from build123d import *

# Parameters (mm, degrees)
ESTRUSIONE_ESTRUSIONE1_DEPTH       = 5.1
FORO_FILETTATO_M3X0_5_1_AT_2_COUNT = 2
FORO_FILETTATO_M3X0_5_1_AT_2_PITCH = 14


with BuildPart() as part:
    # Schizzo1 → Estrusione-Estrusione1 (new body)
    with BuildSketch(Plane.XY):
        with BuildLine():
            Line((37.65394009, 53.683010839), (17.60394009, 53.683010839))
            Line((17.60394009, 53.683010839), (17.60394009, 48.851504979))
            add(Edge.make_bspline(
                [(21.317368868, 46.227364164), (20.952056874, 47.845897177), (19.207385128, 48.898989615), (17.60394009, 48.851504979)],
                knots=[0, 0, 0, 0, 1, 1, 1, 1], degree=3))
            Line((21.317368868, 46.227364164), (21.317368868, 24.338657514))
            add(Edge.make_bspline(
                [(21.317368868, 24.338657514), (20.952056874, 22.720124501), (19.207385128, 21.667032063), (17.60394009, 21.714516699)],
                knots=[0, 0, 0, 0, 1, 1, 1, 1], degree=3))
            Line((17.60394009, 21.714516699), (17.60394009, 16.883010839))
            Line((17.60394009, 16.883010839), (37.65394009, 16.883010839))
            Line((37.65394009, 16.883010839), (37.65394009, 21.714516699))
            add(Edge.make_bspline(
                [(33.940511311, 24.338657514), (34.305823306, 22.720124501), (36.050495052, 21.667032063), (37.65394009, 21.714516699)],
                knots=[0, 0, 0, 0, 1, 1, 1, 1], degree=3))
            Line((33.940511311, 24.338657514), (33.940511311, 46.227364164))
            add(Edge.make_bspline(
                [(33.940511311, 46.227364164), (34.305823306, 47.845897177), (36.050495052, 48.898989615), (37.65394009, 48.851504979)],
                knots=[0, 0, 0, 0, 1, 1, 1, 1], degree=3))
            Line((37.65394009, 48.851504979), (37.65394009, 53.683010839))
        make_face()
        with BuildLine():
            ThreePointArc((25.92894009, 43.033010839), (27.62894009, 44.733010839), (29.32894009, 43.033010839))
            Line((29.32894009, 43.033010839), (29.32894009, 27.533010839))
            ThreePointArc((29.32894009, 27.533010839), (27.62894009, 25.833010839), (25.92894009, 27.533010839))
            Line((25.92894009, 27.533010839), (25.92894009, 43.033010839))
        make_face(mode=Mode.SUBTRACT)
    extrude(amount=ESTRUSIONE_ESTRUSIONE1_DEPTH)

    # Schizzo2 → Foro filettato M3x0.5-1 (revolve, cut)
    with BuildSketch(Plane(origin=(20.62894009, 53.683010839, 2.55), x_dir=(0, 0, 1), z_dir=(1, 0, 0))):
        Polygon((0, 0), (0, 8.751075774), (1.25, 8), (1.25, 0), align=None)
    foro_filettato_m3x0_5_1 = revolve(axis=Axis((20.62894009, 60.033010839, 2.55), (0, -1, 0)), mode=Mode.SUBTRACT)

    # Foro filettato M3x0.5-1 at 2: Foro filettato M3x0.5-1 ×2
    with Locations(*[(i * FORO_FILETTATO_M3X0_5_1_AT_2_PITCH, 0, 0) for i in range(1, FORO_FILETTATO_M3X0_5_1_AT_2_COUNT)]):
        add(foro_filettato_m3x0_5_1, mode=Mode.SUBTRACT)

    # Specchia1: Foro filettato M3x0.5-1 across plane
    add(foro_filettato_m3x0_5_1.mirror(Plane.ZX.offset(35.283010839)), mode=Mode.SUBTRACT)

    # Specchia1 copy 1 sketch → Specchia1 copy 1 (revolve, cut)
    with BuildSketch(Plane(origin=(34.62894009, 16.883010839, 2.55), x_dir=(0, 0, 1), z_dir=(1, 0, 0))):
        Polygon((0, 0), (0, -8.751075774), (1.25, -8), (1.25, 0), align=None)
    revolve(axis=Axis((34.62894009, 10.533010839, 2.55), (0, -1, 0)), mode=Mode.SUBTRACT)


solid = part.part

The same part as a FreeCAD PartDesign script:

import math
import FreeCAD as App
import Part
import Sketcher
Q = App.Units.Quantity


def add_polygon(sketch, points):
    """Adds a closed chain of lines whose ends are joined by coincident constraints."""
    first, n = sketch.GeometryCount, len(points)
    for a, b in zip(points, points[1:] + points[:1]):
        sketch.addGeometry(Part.LineSegment(App.Vector(*a, 0), App.Vector(*b, 0)), False)
    for i in range(n):
        sketch.addConstraint(Sketcher.Constraint("Coincident", first + i, 2, first + (i + 1) % n, 1))

doc = App.newDocument("Part")
body = doc.addObject("PartDesign::Body", "Body")

# Sketch on XY plane
sketch1 = doc.addObject("Sketcher::SketchObject", "Sketch")
body.addObject(sketch1)
sketch1.AttachmentSupport = (doc.XY_Plane, [""])
sketch1.MapMode = "FlatFace"
sketch1.addGeometry([
    Part.LineSegment(App.Vector(37.65394, 53.683011, 0), App.Vector(17.60394, 53.683011, 0)),  # 0
    Part.LineSegment(App.Vector(17.60394, 53.683011, 0), App.Vector(17.60394, 48.851505, 0)),  # 1
    Part.BSplineCurve([App.Vector(21.317369, 46.227364, 0), App.Vector(20.952057, 47.845897, 0), App.Vector(19.207385, 48.89899, 0), App.Vector(17.60394, 48.851505, 0)], [4, 4], [0, 1], False, 3, [1, 1, 1, 1], False),  # 2
    Part.LineSegment(App.Vector(21.317369, 46.227364, 0), App.Vector(21.317369, 24.338658, 0)),  # 3
    Part.BSplineCurve([App.Vector(21.317369, 24.338658, 0), App.Vector(20.952057, 22.720125, 0), App.Vector(19.207385, 21.667032, 0), App.Vector(17.60394, 21.714517, 0)], [4, 4], [0, 1], False, 3, [1, 1, 1, 1], False),  # 4
    Part.LineSegment(App.Vector(17.60394, 21.714517, 0), App.Vector(17.60394, 16.883011, 0)),  # 5
    Part.LineSegment(App.Vector(17.60394, 16.883011, 0), App.Vector(37.65394, 16.883011, 0)),  # 6
    Part.LineSegment(App.Vector(37.65394, 16.883011, 0), App.Vector(37.65394, 21.714517, 0)),  # 7
    Part.BSplineCurve([App.Vector(33.940511, 24.338658, 0), App.Vector(34.305823, 22.720125, 0), App.Vector(36.050495, 21.667032, 0), App.Vector(37.65394, 21.714517, 0)], [4, 4], [0, 1], False, 3, [1, 1, 1, 1], False),  # 8
    Part.LineSegment(App.Vector(33.940511, 24.338658, 0), App.Vector(33.940511, 46.227364, 0)),  # 9
    Part.BSplineCurve([App.Vector(33.940511, 46.227364, 0), App.Vector(34.305823, 47.845897, 0), App.Vector(36.050495, 48.89899, 0), App.Vector(37.65394, 48.851505, 0)], [4, 4], [0, 1], False, 3, [1, 1, 1, 1], False),  # 10
    Part.LineSegment(App.Vector(37.65394, 48.851505, 0), App.Vector(37.65394, 53.683011, 0)),  # 11
    Part.LineSegment(App.Vector(25.92894, 27.533011, 0), App.Vector(25.92894, 43.033011, 0)),  # 12
    Part.ArcOfCircle(Part.Circle(App.Vector(27.62894, 43.033011, 0), App.Vector(0, 0, 1), 1.7), math.radians(0), math.radians(180)),  # 13
    Part.LineSegment(App.Vector(29.32894, 43.033011, 0), App.Vector(29.32894, 27.533011, 0)),  # 14
    Part.ArcOfCircle(Part.Circle(App.Vector(27.62894, 27.533011, 0), App.Vector(0, 0, 1), 1.7), math.radians(180), math.radians(360)),  # 15
], False)
sketch1.addConstraint([
    Sketcher.Constraint("Block", 2),
    Sketcher.Constraint("Block", 4),
    Sketcher.Constraint("Block", 8),
    Sketcher.Constraint("Block", 10),
    Sketcher.Constraint("Coincident", 0, 2, 1, 1),
    Sketcher.Constraint("Coincident", 1, 2, 2, 2),
    Sketcher.Constraint("Coincident", 2, 1, 3, 1),
    Sketcher.Constraint("Coincident", 3, 2, 4, 1),
    Sketcher.Constraint("Coincident", 4, 2, 5, 1),
    Sketcher.Constraint("Coincident", 5, 2, 6, 1),
    Sketcher.Constraint("Coincident", 6, 2, 7, 1),
    Sketcher.Constraint("Coincident", 7, 2, 8, 2),
    Sketcher.Constraint("Coincident", 8, 1, 9, 1),
    Sketcher.Constraint("Coincident", 9, 2, 10, 1),
    Sketcher.Constraint("Coincident", 10, 2, 11, 1),
    Sketcher.Constraint("Coincident", 11, 2, 0, 1),
    Sketcher.Constraint("Tangent", 12, 2, 13, 2),
    Sketcher.Constraint("Tangent", 13, 1, 14, 1),
    Sketcher.Constraint("Tangent", 14, 2, 15, 2),
    Sketcher.Constraint("Tangent", 15, 1, 12, 1),
    Sketcher.Constraint("Horizontal", 0),
    Sketcher.Constraint("Vertical", 1),
    Sketcher.Constraint("Vertical", 5),
    Sketcher.Constraint("Horizontal", 6),
    Sketcher.Constraint("Vertical", 7),
    Sketcher.Constraint("Vertical", 11),
    Sketcher.Constraint("Vertical", 12),
    Sketcher.Constraint("Vertical", 14),
    Sketcher.Constraint("Equal", 1, 5),
    Sketcher.Constraint("Radius", 13, 1.7),
    Sketcher.Constraint("DistanceY", 12, 1, 12, 2, 15.5),
    Sketcher.Constraint("DistanceY", 5, 2, 0, 2, 36.8),
    Sketcher.Constraint("DistanceY", 13, 3, 0, 2, 10.65),
    Sketcher.Constraint("DistanceX", 0, 2, 13, 3, 10.025),
])
pad1 = doc.addObject("PartDesign::Pad", "Pad")
body.addObject(pad1)
pad1.Profile = sketch1
pad1.Length = 5.1

# Sketch on YZ plane
sketch2 = doc.addObject("Sketcher::SketchObject", "Sketch001")
body.addObject(sketch2)
sketch2.AttachmentSupport = (doc.YZ_Plane, [""])
sketch2.MapMode = "FlatFace"
sketch2.AttachmentOffset = App.Placement(App.Vector(0, 0, 20.62894), App.Rotation())
add_polygon(sketch2, [(44.9, 2.5), (53.7, 2.5), (53.7, 3.8), (45.7, 3.8)])  # lines 0-3
sketch2.addGeometry(Part.LineSegment(App.Vector(53.7, 2.5, 0), App.Vector(44.9, 2.5, 0)), True)  # axis
sketch2.addConstraint([
    Sketcher.Constraint("Horizontal", 0),
    Sketcher.Constraint("Vertical", 1),
    Sketcher.Constraint("Horizontal", 2),
    Sketcher.Constraint("Horizontal", 4),
    Sketcher.Constraint("Coincident", 4, 1, 0, 2),
    Sketcher.Constraint("Equal", 0, 4),
    Sketcher.Constraint("DistanceX", 2, 2, 2, 1, 8.0),
    Sketcher.Constraint("Angle", 3, Q("-121 deg")),
    Sketcher.Constraint("DistanceY", 1, 1, 1, 2, 1.25),
    Sketcher.Constraint("DistanceY", -1, 1, 1, 2, 3.8),
    Sketcher.Constraint("DistanceX", -1, 1, 0, 2, 53.683011),
])
groove = doc.addObject("PartDesign::Groove", "Groove")
body.addObject(groove)
groove.Profile = sketch2
groove.ReferenceAxis = (sketch2, ["Axis0"])
groove.Angle = 360
doc.recompute()

linearpattern = doc.addObject("PartDesign::LinearPattern", "LinearPattern")
body.addObject(linearpattern)
linearpattern.Originals = [groove]
linearpattern.Direction = (doc.X_Axis, [""])
linearpattern.Mode = "offset"
linearpattern.Offset = 14
linearpattern.Occurrences = 2
body.Tip = linearpattern
doc.recompute()

datumplane = doc.addObject("PartDesign::Plane", "DatumPlane")
body.addObject(datumplane)
datumplane.AttachmentSupport = (doc.XZ_Plane, [""])
datumplane.MapMode = "FlatFace"
datumplane.AttachmentOffset = App.Placement(App.Vector(0, 0, -35.283011), App.Rotation())
mirrored = doc.addObject("PartDesign::Mirrored", "Mirrored")
body.addObject(mirrored)
mirrored.Originals = [groove]
mirrored.MirrorPlane = (datumplane, [""])
body.Tip = mirrored

# Sketch on YZ plane
sketch3 = doc.addObject("Sketcher::SketchObject", "Sketch002")
body.addObject(sketch3)
sketch3.AttachmentSupport = (doc.YZ_Plane, [""])
sketch3.MapMode = "FlatFace"
sketch3.AttachmentOffset = App.Placement(App.Vector(0, 0, 34.62894), App.Rotation())
add_polygon(sketch3, [(16.9, 2.5), (25.6, 2.5), (24.9, 3.8), (16.9, 3.8)])  # lines 0-3
sketch3.addGeometry(Part.LineSegment(App.Vector(25.6, 2.5, 0), App.Vector(16.9, 2.5, 0)), True)  # axis
sketch3.addConstraint([
    Sketcher.Constraint("Horizontal", 0),
    Sketcher.Constraint("Horizontal", 2),
    Sketcher.Constraint("Vertical", 3),
    Sketcher.Constraint("Horizontal", 4),
    Sketcher.Constraint("Coincident", 4, 1, 0, 2),
    Sketcher.Constraint("Vertical", 2, 2, 4, 2),
    Sketcher.Constraint("DistanceX", 2, 2, 2, 1, 8.0),
    Sketcher.Constraint("Angle", 1, Q("121 deg")),
    Sketcher.Constraint("DistanceY", 3, 2, 3, 1, 1.25),
    Sketcher.Constraint("DistanceY", -1, 1, 1, 2, 3.8),
    Sketcher.Constraint("DistanceX", -1, 1, 1, 2, 24.883011),
])
groove2 = doc.addObject("PartDesign::Groove", "Groove001")
body.addObject(groove2)
groove2.Profile = sketch3
groove2.ReferenceAxis = (sketch3, ["Axis0"])
groove2.Angle = 360

doc.recompute()
